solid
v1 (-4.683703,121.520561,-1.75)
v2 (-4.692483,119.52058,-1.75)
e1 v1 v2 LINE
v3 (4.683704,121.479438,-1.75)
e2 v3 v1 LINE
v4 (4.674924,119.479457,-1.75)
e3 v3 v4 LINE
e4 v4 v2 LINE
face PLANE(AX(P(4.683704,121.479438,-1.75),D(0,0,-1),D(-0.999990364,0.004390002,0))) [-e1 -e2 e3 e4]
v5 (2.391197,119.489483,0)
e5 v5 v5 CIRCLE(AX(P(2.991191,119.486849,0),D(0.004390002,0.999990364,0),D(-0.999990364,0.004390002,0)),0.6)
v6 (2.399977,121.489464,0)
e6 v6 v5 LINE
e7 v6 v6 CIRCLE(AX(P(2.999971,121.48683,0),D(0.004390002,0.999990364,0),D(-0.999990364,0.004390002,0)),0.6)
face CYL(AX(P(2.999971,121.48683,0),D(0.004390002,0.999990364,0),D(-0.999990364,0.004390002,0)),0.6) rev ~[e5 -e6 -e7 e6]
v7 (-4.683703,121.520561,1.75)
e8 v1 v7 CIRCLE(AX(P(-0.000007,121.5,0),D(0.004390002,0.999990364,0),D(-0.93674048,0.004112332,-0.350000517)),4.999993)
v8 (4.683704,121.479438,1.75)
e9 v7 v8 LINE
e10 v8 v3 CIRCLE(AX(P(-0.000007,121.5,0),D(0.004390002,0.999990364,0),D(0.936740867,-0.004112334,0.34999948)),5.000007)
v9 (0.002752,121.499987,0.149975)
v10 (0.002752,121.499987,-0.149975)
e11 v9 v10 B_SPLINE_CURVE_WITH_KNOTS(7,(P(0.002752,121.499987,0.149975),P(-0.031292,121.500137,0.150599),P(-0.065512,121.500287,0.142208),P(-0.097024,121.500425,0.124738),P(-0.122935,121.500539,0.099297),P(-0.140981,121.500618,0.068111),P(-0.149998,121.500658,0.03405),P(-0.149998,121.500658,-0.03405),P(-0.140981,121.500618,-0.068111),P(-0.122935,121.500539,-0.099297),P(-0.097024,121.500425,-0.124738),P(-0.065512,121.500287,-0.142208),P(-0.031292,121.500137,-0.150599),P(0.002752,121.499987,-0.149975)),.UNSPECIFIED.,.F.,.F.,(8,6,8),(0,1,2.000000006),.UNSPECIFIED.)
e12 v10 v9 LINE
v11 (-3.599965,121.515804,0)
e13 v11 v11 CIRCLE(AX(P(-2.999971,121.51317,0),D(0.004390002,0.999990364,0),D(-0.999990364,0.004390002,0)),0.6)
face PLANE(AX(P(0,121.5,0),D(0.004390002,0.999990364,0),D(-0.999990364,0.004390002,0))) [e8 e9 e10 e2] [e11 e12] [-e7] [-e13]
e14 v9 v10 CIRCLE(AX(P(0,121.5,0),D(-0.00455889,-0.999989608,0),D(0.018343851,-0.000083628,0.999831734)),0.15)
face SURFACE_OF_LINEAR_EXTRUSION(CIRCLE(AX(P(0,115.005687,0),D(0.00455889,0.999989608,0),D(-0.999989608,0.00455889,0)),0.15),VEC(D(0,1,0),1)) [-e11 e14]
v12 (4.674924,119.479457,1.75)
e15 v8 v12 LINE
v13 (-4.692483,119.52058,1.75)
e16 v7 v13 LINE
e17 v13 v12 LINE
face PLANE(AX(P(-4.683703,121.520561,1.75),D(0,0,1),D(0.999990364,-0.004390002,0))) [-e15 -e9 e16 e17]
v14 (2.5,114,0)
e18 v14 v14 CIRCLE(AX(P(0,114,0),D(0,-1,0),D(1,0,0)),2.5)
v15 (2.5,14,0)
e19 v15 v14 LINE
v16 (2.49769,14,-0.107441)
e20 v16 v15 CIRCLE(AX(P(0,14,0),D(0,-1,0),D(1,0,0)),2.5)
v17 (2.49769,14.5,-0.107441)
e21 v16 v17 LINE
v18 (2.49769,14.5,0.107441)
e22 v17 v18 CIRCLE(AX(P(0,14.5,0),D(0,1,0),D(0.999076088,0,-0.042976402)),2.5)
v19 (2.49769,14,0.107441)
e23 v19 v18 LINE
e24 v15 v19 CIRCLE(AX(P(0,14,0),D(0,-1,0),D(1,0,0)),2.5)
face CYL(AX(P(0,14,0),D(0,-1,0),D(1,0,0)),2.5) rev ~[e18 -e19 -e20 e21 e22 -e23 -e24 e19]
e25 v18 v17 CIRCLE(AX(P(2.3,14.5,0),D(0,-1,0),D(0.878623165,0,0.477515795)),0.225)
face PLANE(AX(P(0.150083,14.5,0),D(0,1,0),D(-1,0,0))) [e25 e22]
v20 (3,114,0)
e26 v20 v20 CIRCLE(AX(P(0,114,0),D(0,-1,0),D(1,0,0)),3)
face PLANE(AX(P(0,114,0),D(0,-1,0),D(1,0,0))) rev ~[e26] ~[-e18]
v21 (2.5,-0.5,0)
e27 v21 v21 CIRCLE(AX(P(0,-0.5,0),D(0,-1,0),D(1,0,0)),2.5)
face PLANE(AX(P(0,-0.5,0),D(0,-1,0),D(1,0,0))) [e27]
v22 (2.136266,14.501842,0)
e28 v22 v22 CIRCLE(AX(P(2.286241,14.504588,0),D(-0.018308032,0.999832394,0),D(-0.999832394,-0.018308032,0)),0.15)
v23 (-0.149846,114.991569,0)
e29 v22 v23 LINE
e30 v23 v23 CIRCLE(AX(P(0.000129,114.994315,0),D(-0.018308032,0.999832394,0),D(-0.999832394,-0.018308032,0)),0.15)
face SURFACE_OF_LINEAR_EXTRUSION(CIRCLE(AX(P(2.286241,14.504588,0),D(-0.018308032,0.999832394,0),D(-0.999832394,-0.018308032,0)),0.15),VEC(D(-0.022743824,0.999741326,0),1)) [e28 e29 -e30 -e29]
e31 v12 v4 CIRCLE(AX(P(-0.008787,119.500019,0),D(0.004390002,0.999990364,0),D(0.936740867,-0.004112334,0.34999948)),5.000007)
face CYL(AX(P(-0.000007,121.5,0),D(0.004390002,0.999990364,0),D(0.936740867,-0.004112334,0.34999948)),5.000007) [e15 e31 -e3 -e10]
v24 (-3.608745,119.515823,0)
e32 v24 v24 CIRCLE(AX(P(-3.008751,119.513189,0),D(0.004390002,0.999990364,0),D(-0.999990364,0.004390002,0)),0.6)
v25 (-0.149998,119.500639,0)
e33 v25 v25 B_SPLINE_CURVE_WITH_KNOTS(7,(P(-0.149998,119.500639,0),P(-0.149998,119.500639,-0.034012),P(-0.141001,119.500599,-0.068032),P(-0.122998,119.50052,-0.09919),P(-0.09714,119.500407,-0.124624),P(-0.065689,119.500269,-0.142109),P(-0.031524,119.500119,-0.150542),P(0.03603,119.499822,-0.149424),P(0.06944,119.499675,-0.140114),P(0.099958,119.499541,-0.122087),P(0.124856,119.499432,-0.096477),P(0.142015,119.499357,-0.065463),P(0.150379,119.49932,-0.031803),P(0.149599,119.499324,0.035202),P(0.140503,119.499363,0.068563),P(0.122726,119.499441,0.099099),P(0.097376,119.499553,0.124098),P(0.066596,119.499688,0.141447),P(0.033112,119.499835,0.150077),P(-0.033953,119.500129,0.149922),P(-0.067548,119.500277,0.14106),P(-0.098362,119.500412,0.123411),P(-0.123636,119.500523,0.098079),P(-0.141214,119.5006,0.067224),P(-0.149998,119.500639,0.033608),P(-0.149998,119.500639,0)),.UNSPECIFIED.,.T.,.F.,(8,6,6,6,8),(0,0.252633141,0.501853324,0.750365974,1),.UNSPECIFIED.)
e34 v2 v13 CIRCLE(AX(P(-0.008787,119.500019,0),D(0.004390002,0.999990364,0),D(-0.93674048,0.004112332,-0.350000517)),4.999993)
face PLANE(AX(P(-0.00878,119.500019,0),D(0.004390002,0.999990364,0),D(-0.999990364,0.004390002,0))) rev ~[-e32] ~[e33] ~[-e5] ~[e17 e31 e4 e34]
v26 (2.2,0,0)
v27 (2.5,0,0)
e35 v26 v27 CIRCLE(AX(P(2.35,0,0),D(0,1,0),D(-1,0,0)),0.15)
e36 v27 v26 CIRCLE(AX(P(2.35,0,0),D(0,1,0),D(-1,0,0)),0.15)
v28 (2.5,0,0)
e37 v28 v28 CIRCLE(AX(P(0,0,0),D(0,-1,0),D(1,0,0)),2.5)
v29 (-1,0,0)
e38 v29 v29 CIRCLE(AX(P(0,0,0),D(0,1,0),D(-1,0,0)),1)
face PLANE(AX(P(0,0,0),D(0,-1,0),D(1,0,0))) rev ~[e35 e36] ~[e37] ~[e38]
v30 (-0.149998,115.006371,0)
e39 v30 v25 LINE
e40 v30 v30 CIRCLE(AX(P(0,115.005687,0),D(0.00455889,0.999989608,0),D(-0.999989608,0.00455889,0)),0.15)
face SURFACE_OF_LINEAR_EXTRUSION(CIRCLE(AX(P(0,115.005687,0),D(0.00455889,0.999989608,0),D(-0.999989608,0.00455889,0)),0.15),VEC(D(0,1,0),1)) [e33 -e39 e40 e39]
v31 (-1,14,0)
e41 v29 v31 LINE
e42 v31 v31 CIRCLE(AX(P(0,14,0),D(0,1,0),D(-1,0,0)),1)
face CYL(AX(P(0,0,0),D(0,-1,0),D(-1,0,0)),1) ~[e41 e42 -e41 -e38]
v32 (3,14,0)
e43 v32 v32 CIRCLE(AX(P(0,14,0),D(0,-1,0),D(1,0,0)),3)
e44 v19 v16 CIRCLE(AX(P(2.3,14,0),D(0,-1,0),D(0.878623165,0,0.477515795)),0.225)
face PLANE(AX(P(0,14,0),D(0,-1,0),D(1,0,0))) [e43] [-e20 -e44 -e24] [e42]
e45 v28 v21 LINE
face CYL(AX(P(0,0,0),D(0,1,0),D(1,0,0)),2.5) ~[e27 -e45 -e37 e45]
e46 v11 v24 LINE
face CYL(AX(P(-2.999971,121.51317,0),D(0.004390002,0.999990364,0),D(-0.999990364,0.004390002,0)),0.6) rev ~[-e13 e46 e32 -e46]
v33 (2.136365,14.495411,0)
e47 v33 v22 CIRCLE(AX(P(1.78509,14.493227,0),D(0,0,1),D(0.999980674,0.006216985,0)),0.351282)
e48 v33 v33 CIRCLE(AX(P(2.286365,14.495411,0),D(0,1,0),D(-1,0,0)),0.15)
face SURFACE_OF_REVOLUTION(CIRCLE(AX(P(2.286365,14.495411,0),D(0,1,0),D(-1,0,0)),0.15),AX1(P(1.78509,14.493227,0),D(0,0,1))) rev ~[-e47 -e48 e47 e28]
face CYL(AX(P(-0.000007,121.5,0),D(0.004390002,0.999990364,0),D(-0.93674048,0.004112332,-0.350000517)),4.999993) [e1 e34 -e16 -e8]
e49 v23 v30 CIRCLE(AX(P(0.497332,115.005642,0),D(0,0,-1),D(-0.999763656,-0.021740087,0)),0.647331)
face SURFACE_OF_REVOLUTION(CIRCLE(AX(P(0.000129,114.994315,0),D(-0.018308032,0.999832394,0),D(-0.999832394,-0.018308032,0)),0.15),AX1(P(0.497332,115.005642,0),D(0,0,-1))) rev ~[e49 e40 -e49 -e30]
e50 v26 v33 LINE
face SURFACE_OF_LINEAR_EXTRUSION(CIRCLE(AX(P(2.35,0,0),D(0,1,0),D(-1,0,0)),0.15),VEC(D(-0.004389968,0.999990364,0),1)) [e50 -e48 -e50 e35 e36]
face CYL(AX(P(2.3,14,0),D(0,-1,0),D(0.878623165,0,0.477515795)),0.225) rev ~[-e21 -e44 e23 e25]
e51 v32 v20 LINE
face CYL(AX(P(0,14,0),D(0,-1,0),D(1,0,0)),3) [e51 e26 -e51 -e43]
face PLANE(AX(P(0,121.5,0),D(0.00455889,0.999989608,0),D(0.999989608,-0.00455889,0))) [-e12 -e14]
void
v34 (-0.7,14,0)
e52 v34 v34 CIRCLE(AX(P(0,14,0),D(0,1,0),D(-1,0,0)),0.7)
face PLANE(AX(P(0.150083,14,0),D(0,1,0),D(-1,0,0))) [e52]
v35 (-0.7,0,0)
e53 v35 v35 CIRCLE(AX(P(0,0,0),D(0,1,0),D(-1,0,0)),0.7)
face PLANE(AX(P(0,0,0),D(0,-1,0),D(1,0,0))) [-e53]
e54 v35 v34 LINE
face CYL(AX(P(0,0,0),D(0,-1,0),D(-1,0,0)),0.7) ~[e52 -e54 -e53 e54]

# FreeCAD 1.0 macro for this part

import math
import FreeCAD as App
import Part
import Sketcher

V = App.Vector

doc = App.newDocument("Part")
params = doc.addObject("Spreadsheet::Sheet", "Params")
for row, (alias, value) in enumerate([
    ("sketch1_diameter", "5 mm"),
    ("pad1_length", "0.5 mm"),
    ("sketch2_diameter", "2 mm"),
    ("sketch2_diameter2", "1.4 mm"),
    ("pad2_length", "14 mm"),
    ("sketch3_radius", "2.5 mm"),
    ("pad3_length", "0.5 mm"),
    ("sketch4_diameter", "0.3 mm"),
    ("sketch6_diameter", "6 mm"),
    ("sketch6_diameter2", "5 mm"),
    ("pad4_length", "100 mm"),
    ("sketch7_diameter", "1.2 mm"),
    ("pad5_length", "2 mm"),
], start=1):
    params.set(f"A{row}", alias)
    params.set(f"B{row}", "=" + value)
    params.setAlias(f"B{row}", alias)

body = doc.addObject("PartDesign::Body", "Body")

# Sketch on XZ plane
sketch1 = body.newObject("Sketcher::SketchObject", "Sketch")
sketch1.AttachmentSupport = (doc.getObject("XZ_Plane"), [""])
sketch1.MapMode = "FlatFace"
sketch1.addGeometry(Part.Circle(V(0, 0, 0), V(0, 0, 1), 2.5), False)
sketch1.addConstraint([
    Sketcher.Constraint("Coincident", 0, 3, -1, 1),
    Sketcher.Constraint("Diameter", 0, 5.0),
])
sketch1.setExpression("Constraints[1]", "Params.sketch1_diameter")
pad1 = body.newObject("PartDesign::Pad", "Pad")
pad1.Profile = sketch1
pad1.setExpression("Length", "Params.pad1_length")

# Sketch on XZ plane
sketch2 = body.newObject("Sketcher::SketchObject", "Sketch001")
sketch2.AttachmentSupport = (doc.getObject("XZ_Plane"), [""])
sketch2.MapMode = "FlatFace"
sketch2.addGeometry([
    Part.Circle(V(0, 0, 0), V(0, 0, 1), 1),
    Part.Circle(V(0, 0, 0), V(0, 0, 1), 0.7),
], False)
sketch2.addConstraint([
    Sketcher.Constraint("Coincident", 0, 3, -1, 1),
    Sketcher.Constraint("Coincident", 1, 3, -1, 1),
    Sketcher.Constraint("Diameter", 0, 2.0),
    Sketcher.Constraint("Diameter", 1, 1.4),
])
sketch2.setExpression("Constraints[2]", "Params.sketch2_diameter")
sketch2.setExpression("Constraints[3]", "Params.sketch2_diameter2")
pad2 = body.newObject("PartDesign::Pad", "Pad001")
pad2.Profile = sketch2
pad2.setExpression("Length", "Params.pad2_length")
pad2.Reversed = True

# Sketch on XZ plane
sketch3 = body.newObject("Sketcher::SketchObject", "Sketch002")
sketch3.AttachmentSupport = (doc.getObject("XZ_Plane"), [""])
sketch3.MapMode = "FlatFace"
sketch3.AttachmentOffset = App.Placement(V(0, 0, -14), App.Rotation())
sketch3.addGeometry([
    Part.ArcOfCircle(Part.Circle(V(2.3, 0, 0), V(0, 0, 1), 0.225), math.radians(28.52328), math.radians(331.47672)),
    Part.ArcOfCircle(Part.Circle(V(0, 0, 0), V(0, 0, 1), 2.5), math.radians(2.463125), math.radians(357.536875)),
], False)
sketch3.addConstraint([
    Sketcher.Constraint("Coincident", 0, 1, 1, 1),
    Sketcher.Constraint("Coincident", 1, 2, 0, 2),
    Sketcher.Constraint("Coincident", 1, 3, -1, 1),
    Sketcher.Constraint("PointOnObject", 0, 3, -1),
    Sketcher.Constraint("Radius", 1, 2.5),
    Sketcher.Constraint("Radius", 0, 0.225),
    Sketcher.Constraint("DistanceX", -1, 1, 0, 3, 2.3),
])
sketch3.setExpression("Constraints[4]", "Params.sketch3_radius")
pad3 = body.newObject("PartDesign::Pad", "Pad002")
pad3.Profile = sketch3
pad3.setExpression("Length", "Params.pad3_length")
pad3.Reversed = True

# Sketch on XZ plane
sketch4 = body.newObject("Sketcher::SketchObject", "Sketch003")
sketch4.AttachmentSupport = (doc.getObject("XZ_Plane"), [""])
sketch4.MapMode = "FlatFace"
sketch4.addGeometry(Part.Circle(V(2.35, 0, 0), V(0, 0, 1), 0.15), False)
sketch4.addConstraint([
    Sketcher.Constraint("PointOnObject", 0, 3, -1),
    Sketcher.Constraint("Diameter", 0, 0.3),
    Sketcher.Constraint("DistanceX", -1, 1, 0, 3, 2.35),
])
sketch4.setExpression("Constraints[1]", "Params.sketch4_diameter")

# Sketch on XY plane
sketch5 = body.newObject("Sketcher::SketchObject", "Sketch004")
sketch5.AttachmentSupport = (doc.getObject("XY_Plane"), [""])
sketch5.MapMode = "FlatFace"
sketch5.addGeometry([
    Part.LineSegment(V(2.35, 0, 0), V(2.286365, 14.495411, 0)),  # 0
    Part.ArcOfCircle(Part.Circle(V(1.78509, 14.493227, 0), V(0, 0, 1), 0.50128), math.radians(0.24962), math.radians(1.298652)),  # 1
    Part.LineSegment(V(2.286241, 14.504588, 0), V(0.000129, 114.994315, 0)),  # 2
    Part.ArcOfCircle(Part.Circle(V(0.497332, 115.005642, 0), V(0, 0, 1), 0.497332), math.radians(179.994797), math.radians(181.305034)),  # 3
    Part.LineSegment(V(0, 115.005687, 0), V(0, 121.5, 0)),  # 4
], False)
sketch5.addConstraint([
    Sketcher.Constraint("Coincident", 0, 2, 1, 1),
    Sketcher.Constraint("Coincident", 1, 2, 2, 1),
    Sketcher.Constraint("Coincident", 2, 2, 3, 2),
    Sketcher.Constraint("Coincident", 3, 1, 4, 1),
    Sketcher.Constraint("Vertical", 4),
    Sketcher.Constraint("PointOnObject", 0, 1, -1),
    Sketcher.Constraint("PointOnObject", 3, 1, -2),
    Sketcher.Constraint("DistanceY", -1, 1, 4, 2, 121.5),
    Sketcher.Constraint("DistanceX", -1, 1, 0, 1, 2.35),
    Sketcher.Constraint("Radius", 1, 0.50128),
    Sketcher.Constraint("Radius", 3, 0.497332),
    Sketcher.Constraint("DistanceY", 1, 2, 3, 1, 100.501099),
    Sketcher.Constraint("Distance", 0, 14.495551),
    Sketcher.Constraint("DistanceY", 4, 1, 4, 2, 6.494313),
    Sketcher.Constraint("DistanceX", -1, 1, 1, 3, 1.78509),
    Sketcher.Constraint("DistanceY", -1, 1, 3, 3, 115.005642),
    Sketcher.Constraint("DistanceX", -1, 1, 1, 2, 2.286241),
    Sketcher.Constraint("DistanceX", -1, 1, 2, 2, 0.000129),
])
doc.recompute()

additivepipe = body.newObject("PartDesign::AdditivePipe", "AdditivePipe")
additivepipe.Profile = sketch4
additivepipe.Spine = (sketch5, ["Edge1", "Edge2", "Edge3", "Edge4", "Edge5"])

# Sketch on XZ plane
sketch6 = body.newObject("Sketcher::SketchObject", "Sketch005")
sketch6.AttachmentSupport = (doc.getObject("XZ_Plane"), [""])
sketch6.MapMode = "FlatFace"
sketch6.AttachmentOffset = App.Placement(V(0, 0, -14), App.Rotation())
sketch6.addGeometry([
    Part.Circle(V(0, 0, 0), V(0, 0, 1), 3),
    Part.Circle(V(0, 0, 0), V(0, 0, 1), 2.5),
], False)
sketch6.addConstraint([
    Sketcher.Constraint("Coincident", 0, 3, -1, 1),
    Sketcher.Constraint("Coincident", 1, 3, -1, 1),
    Sketcher.Constraint("Diameter", 0, 6.0),
    Sketcher.Constraint("Diameter", 1, 5.0),
])
sketch6.setExpression("Constraints[2]", "Params.sketch6_diameter")
sketch6.setExpression("Constraints[3]", "Params.sketch6_diameter2")
pad4 = body.newObject("PartDesign::Pad", "Pad003")
pad4.Profile = sketch6
pad4.setExpression("Length", "Params.pad4_length")
pad4.Reversed = True

# Sketch on an angled plane
sketch7 = body.newObject("Sketcher::SketchObject", "Sketch006")
sketch7.Placement = App.Placement(V(0.533374, 121.497658, 0), App.Rotation(V(-0.999990364, 0.004390002, 0), V(0, 0, 1), V(0.004390002, 0.999990364, 0), "ZXY"))
sketch7.addGeometry([
    Part.LineSegment(V(5.217127, 1.75, 0), V(-4.15037, 1.75, 0)),  # 0
    Part.ArcOfCircle(Part.Circle(V(0.533386, 0, 0), V(0, 0, 1), 5.000007), math.radians(159.512717), math.radians(200.487283)),  # 1
    Part.LineSegment(V(-4.15037, -1.75, 0), V(5.217127, -1.75, 0)),  # 2
    Part.ArcOfCircle(Part.Circle(V(0.533386, 0, 0), V(0, 0, 1), 4.999993), math.radians(-20.487347), math.radians(20.487347)),  # 3
    Part.Circle(V(-2.466621, 0, 0), V(0, 0, 1), 0.6),  # 4
    Part.Circle(V(3.533379, 0, 0), V(0, 0, 1), 0.6),  # 5
], False)
sketch7.addConstraint([
    Sketcher.Constraint("Coincident", 0, 2, 1, 1),
    Sketcher.Constraint("Coincident", 1, 2, 2, 1),
    Sketcher.Constraint("Coincident", 2, 2, 3, 1),
    Sketcher.Constraint("Coincident", 3, 2, 0, 1),
    Sketcher.Constraint("Horizontal", 0),
    Sketcher.Constraint("Horizontal", 2),
    Sketcher.Constraint("Coincident", 3, 3, 1, 3),
    Sketcher.Constraint("Equal", 4, 5),
    Sketcher.Constraint("Symmetric", 0, 2, 1, 2, -1),
    Sketcher.Constraint("PointOnObject", 4, 3, -1),
    Sketcher.Constraint("PointOnObject", 5, 3, -1),
    Sketcher.Constraint("Diameter", 4, 1.2),
    Sketcher.Constraint("DistanceX", 4, 3, 5, 3, 6.0),
    Sketcher.Constraint("DistanceY", 1, 2, 0, 2, 3.5),
    Sketcher.Constraint("Radius", 1, 5.000007),
    Sketcher.Constraint("Radius", 3, 4.999993),
    Sketcher.Constraint("DistanceX", 4, 3, -1, 1, 2.466621),
    Sketcher.Constraint("DistanceX", 0, 2, -1, 1, 4.15037),
])
sketch7.setExpression("Constraints[11]", "Params.sketch7_diameter")
pad5 = body.newObject("PartDesign::Pad", "Pad004")
pad5.Profile = sketch7
pad5.setExpression("Length", "Params.pad5_length")
pad5.Reversed = True

doc.recompute()
